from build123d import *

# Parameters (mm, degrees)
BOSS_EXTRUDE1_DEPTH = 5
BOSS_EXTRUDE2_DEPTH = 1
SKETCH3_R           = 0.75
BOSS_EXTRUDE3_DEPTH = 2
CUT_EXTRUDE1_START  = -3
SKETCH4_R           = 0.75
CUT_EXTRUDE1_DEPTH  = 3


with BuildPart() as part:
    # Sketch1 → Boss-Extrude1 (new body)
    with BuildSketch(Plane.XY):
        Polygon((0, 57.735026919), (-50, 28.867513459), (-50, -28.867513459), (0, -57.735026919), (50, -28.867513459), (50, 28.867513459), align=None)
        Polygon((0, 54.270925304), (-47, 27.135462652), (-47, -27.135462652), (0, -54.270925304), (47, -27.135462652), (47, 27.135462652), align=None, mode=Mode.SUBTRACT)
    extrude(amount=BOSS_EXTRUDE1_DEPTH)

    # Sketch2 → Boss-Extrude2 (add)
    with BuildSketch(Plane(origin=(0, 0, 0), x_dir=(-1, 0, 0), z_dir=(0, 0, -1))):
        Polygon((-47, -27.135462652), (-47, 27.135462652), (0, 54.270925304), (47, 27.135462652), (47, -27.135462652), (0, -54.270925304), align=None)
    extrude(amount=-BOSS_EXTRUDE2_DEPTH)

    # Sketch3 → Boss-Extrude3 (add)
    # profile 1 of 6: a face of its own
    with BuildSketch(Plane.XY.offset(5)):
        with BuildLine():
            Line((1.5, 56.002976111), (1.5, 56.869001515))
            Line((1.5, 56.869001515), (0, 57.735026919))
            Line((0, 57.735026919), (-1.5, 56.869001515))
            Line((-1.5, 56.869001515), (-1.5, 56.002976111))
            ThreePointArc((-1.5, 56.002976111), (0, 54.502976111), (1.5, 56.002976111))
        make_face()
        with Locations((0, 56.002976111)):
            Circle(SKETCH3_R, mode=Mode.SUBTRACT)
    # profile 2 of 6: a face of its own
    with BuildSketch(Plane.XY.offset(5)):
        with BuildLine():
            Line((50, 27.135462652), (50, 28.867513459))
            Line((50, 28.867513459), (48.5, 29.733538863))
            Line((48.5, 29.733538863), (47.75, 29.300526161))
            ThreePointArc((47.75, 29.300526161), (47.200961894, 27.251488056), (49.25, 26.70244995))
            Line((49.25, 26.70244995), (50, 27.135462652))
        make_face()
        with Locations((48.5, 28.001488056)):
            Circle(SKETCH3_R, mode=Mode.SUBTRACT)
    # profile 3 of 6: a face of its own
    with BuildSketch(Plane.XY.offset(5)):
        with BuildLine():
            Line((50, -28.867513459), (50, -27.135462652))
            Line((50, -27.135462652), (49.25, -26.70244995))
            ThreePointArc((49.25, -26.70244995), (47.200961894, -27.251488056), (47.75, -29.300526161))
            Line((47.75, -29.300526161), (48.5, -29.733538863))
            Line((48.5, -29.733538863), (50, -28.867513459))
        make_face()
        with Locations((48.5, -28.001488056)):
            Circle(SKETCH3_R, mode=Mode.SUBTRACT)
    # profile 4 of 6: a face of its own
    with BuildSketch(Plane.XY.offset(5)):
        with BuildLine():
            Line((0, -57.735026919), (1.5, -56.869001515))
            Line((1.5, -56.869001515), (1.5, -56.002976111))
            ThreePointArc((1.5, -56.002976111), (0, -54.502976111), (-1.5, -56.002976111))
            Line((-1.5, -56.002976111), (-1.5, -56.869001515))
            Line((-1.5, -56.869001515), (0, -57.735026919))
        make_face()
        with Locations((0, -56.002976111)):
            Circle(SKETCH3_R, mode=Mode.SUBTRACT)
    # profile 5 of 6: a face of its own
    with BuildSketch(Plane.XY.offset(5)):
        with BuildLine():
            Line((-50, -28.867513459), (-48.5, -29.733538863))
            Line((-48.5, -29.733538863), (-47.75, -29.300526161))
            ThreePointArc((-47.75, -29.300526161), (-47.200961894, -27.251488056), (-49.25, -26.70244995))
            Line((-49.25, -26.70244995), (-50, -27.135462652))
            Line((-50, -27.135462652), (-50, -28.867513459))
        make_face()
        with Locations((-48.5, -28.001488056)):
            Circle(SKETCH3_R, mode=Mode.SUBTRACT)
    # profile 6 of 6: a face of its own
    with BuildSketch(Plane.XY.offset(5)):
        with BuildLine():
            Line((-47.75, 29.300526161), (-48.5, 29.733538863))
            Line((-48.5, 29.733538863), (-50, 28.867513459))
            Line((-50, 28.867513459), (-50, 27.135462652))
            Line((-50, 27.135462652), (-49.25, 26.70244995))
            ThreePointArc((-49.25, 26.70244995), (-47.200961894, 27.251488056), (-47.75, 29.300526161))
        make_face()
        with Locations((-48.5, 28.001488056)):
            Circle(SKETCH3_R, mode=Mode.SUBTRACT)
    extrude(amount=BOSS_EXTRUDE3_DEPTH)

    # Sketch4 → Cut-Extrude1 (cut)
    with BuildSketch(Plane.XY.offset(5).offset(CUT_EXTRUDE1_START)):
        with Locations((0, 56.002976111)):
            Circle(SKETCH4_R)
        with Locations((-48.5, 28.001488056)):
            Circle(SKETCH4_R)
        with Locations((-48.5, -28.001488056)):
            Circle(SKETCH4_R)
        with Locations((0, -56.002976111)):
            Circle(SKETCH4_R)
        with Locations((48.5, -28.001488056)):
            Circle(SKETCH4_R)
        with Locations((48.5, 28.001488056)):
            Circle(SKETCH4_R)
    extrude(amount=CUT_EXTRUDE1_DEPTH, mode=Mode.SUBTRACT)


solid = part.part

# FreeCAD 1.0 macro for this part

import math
import FreeCAD as App
import Part
import Sketcher

V = App.Vector
Q = App.Units.Quantity


def add_polygon(sketch, points):
    """Adds a closed chain of lines whose ends are joined by coincident constraints."""
    first, n = sketch.GeometryCount, len(points)
    for a, b in zip(points, points[1:] + points[:1]):
        sketch.addGeometry(Part.LineSegment(App.Vector(*a, 0), App.Vector(*b, 0)), False)
    for i in range(n):
        sketch.addConstraint(Sketcher.Constraint("Coincident", first + i, 2, first + (i + 1) % n, 1))

doc = App.newDocument("Part")
params = doc.addObject("Spreadsheet::Sheet", "Params")
for row, (alias, value) in enumerate([
    ("pad1_length", "5 mm"),
    ("pad2_length", "1 mm"),
    ("sketch3_diameter", "1.5 mm"),
    ("sketch3_radius", "1.5 mm"),
    ("pad3_length", "2 mm"),
    ("sketch4_diameter", "1.5 mm"),
    ("pocket1_length", "3 mm"),
], start=1):
    params.set(f"A{row}", alias)
    params.set(f"B{row}", "=" + value)
    params.setAlias(f"B{row}", alias)

body = doc.addObject("PartDesign::Body", "Body")

# Sketch on XY plane
sketch1 = doc.addObject("Sketcher::SketchObject", "Sketch")
body.addObject(sketch1)
sketch1.AttachmentSupport = (doc.XY_Plane, [""])
sketch1.MapMode = "FlatFace"
add_polygon(sketch1, [(0, 57.735027), (-50, 28.867513), (-50, -28.867513), (0, -57.735027), (50, -28.867513), (50, 28.867513)])  # lines 0-5
add_polygon(sketch1, [(-47, 27.135463), (0, 54.270925), (47, 27.135463), (47, -27.135463), (0, -54.270925), (-47, -27.135463)])  # lines 6-11
sketch1.addConstraint([
    Sketcher.Constraint("Vertical", 1),
    Sketcher.Constraint("Vertical", 4),
    Sketcher.Constraint("Vertical", 8),
    Sketcher.Constraint("Vertical", 11),
    Sketcher.Constraint("Symmetric", 0, 2, 3, 2, -1, 1),
    Sketcher.Constraint("Symmetric", 2, 2, 5, 2, -1, 1),
    Sketcher.Constraint("Symmetric", 6, 2, 9, 2, -1, 1),
    Sketcher.Constraint("Symmetric", 7, 2, 10, 2, -1, 1),
    Sketcher.Constraint("PointOnObject", 2, 2, -2),
    Sketcher.Constraint("PointOnObject", 6, 2, -2),
    Sketcher.Constraint("Parallel", 2, 5),
    Sketcher.Constraint("Parallel", 3, 6),
    Sketcher.Constraint("Parallel", 5, 7),
    Sketcher.Constraint("Parallel", 6, 9),
    Sketcher.Constraint("Horizontal", 1, 2, 3, 2),
    Sketcher.Constraint("Angle", 0, Q("-150 deg")),
    Sketcher.Constraint("DistanceX", 0, 2, -1, 1, Q("50 mm")),
    Sketcher.Constraint("DistanceX", -1, 1, 7, 2, Q("47 mm")),
    Sketcher.Constraint("DistanceY", 6, 2, 5, 2, Q("3.464102 mm")),
    Sketcher.Constraint("DistanceY", 1, 2, 1, 1, Q("57.735027 mm")),
])
pad1 = doc.addObject("PartDesign::Pad", "Pad")
body.addObject(pad1)
pad1.Profile = sketch1
pad1.setExpression("Length", "Params.pad1_length")

# Sketch on XY plane
sketch2 = doc.addObject("Sketcher::SketchObject", "Sketch001")
body.addObject(sketch2)
sketch2.AttachmentSupport = (doc.XY_Plane, [""])
sketch2.MapMode = "FlatFace"
add_polygon(sketch2, [(47, 27.135463), (47, -27.135463), (0, -54.270925), (-47, -27.135463), (-47, 27.135463), (0, 54.270925)])  # lines 0-5
sketch2.addConstraint([
    Sketcher.Constraint("Vertical", 0),
    Sketcher.Constraint("Vertical", 3),
    Sketcher.Constraint("Symmetric", 0, 2, 3, 2, -1, 1),
    Sketcher.Constraint("Symmetric", 1, 2, 4, 2, -1, 1),
    Sketcher.Constraint("PointOnObject", 1, 2, -2),
    Sketcher.Constraint("Parallel", 2, 5),
    Sketcher.Constraint("Horizontal", 0, 2, 2, 2),
    Sketcher.Constraint("Angle", 1, Q("-150 deg")),
    Sketcher.Constraint("DistanceX", -1, 1, 0, 2, Q("47 mm")),
    Sketcher.Constraint("DistanceY", 0, 2, 0, 1, Q("54.270925 mm")),
])
pad2 = doc.addObject("PartDesign::Pad", "Pad001")
body.addObject(pad2)
pad2.Profile = sketch2
pad2.setExpression("Length", "Params.pad2_length")

# Sketch on XY plane
sketch3 = doc.addObject("Sketcher::SketchObject", "Sketch002")
body.addObject(sketch3)
sketch3.AttachmentSupport = (doc.XY_Plane, [""])
sketch3.MapMode = "FlatFace"
sketch3.AttachmentOffset = App.Placement(V(0, 0, 5), App.Rotation())
sketch3.addGeometry([
    Part.LineSegment(V(1.5, 56.002976, 0), V(1.5, 56.869002, 0)),  # 0
    Part.LineSegment(V(1.5, 56.869002, 0), V(0, 57.735027, 0)),  # 1
    Part.LineSegment(V(0, 57.735027, 0), V(-1.5, 56.869002, 0)),  # 2
    Part.LineSegment(V(-1.5, 56.869002, 0), V(-1.5, 56.002976, 0)),  # 3
    Part.ArcOfCircle(Part.Circle(V(0, 56.002976, 0), V(0, 0, 1), 1.5), math.radians(180), math.radians(360)),  # 4
    Part.Circle(V(0, 56.002976, 0), V(0, 0, 1), 0.75),  # 5
    Part.LineSegment(V(50, 27.135463, 0), V(50, 28.867513, 0)),  # 6
    Part.LineSegment(V(50, 28.867513, 0), V(48.5, 29.733539, 0)),  # 7
    Part.LineSegment(V(48.5, 29.733539, 0), V(47.75, 29.300526, 0)),  # 8
    Part.ArcOfCircle(Part.Circle(V(48.5, 28.001488, 0), V(0, 0, 1), 1.5), math.radians(120), math.radians(300)),  # 9
    Part.LineSegment(V(49.25, 26.70245, 0), V(50, 27.135463, 0)),  # 10
    Part.Circle(V(48.5, 28.001488, 0), V(0, 0, 1), 0.75),  # 11
    Part.LineSegment(V(50, -28.867513, 0), V(50, -27.135463, 0)),  # 12
    Part.LineSegment(V(50, -27.135463, 0), V(49.25, -26.70245, 0)),  # 13
    Part.ArcOfCircle(Part.Circle(V(48.5, -28.001488, 0), V(0, 0, 1), 1.5), math.radians(60), math.radians(240)),  # 14
    Part.LineSegment(V(47.75, -29.300526, 0), V(48.5, -29.733539, 0)),  # 15
    Part.LineSegment(V(48.5, -29.733539, 0), V(50, -28.867513, 0)),  # 16
    Part.Circle(V(48.5, -28.001488, 0), V(0, 0, 1), 0.75),  # 17
    Part.LineSegment(V(0, -57.735027, 0), V(1.5, -56.869002, 0)),  # 18
    Part.LineSegment(V(1.5, -56.869002, 0), V(1.5, -56.002976, 0)),  # 19
    Part.ArcOfCircle(Part.Circle(V(0, -56.002976, 0), V(0, 0, 1), 1.5), math.radians(0), math.radians(180)),  # 20
    Part.LineSegment(V(-1.5, -56.002976, 0), V(-1.5, -56.869002, 0)),  # 21
    Part.LineSegment(V(-1.5, -56.869002, 0), V(0, -57.735027, 0)),  # 22
    Part.Circle(V(0, -56.002976, 0), V(0, 0, 1), 0.75),  # 23
    Part.LineSegment(V(-50, -28.867513, 0), V(-48.5, -29.733539, 0)),  # 24
    Part.LineSegment(V(-48.5, -29.733539, 0), V(-47.75, -29.300526, 0)),  # 25
    Part.ArcOfCircle(Part.Circle(V(-48.5, -28.001488, 0), V(0, 0, 1), 1.5), math.radians(-60), math.radians(120)),  # 26
    Part.LineSegment(V(-49.25, -26.70245, 0), V(-50, -27.135463, 0)),  # 27
    Part.LineSegment(V(-50, -27.135463, 0), V(-50, -28.867513, 0)),  # 28
    Part.Circle(V(-48.5, -28.001488, 0), V(0, 0, 1), 0.75),  # 29
    Part.LineSegment(V(-47.75, 29.300526, 0), V(-48.5, 29.733539, 0)),  # 30
    Part.LineSegment(V(-48.5, 29.733539, 0), V(-50, 28.867513, 0)),  # 31
    Part.LineSegment(V(-50, 28.867513, 0), V(-50, 27.135463, 0)),  # 32
    Part.LineSegment(V(-50, 27.135463, 0), V(-49.25, 26.70245, 0)),  # 33
    Part.ArcOfCircle(Part.Circle(V(-48.5, 28.001488, 0), V(0, 0, 1), 1.5), math.radians(-120), math.radians(60)),  # 34
    Part.Circle(V(-48.5, 28.001488, 0), V(0, 0, 1), 0.75),  # 35
], False)
sketch3.addConstraint([
    Sketcher.Constraint("Coincident", 0, 2, 1, 1),
    Sketcher.Constraint("Coincident", 1, 2, 2, 1),
    Sketcher.Constraint("Coincident", 2, 2, 3, 1),
    Sketcher.Constraint("Tangent", 3, 2, 4, 1),
    Sketcher.Constraint("Tangent", 4, 2, 0, 1),
    Sketcher.Constraint("Coincident", 6, 2, 7, 1),
    Sketcher.Constraint("Coincident", 7, 2, 8, 1),
    Sketcher.Constraint("Tangent", 8, 2, 9, 1),
    Sketcher.Constraint("Tangent", 9, 2, 10, 1),
    Sketcher.Constraint("Coincident", 10, 2, 6, 1),
    Sketcher.Constraint("Coincident", 12, 2, 13, 1),
    Sketcher.Constraint("Tangent", 13, 2, 14, 1),
    Sketcher.Constraint("Tangent", 14, 2, 15, 1),
    Sketcher.Constraint("Coincident", 15, 2, 16, 1),
    Sketcher.Constraint("Coincident", 16, 2, 12, 1),
    Sketcher.Constraint("Coincident", 18, 2, 19, 1),
    Sketcher.Constraint("Tangent", 19, 2, 20, 1),
    Sketcher.Constraint("Tangent", 20, 2, 21, 1),
    Sketcher.Constraint("Coincident", 21, 2, 22, 1),
    Sketcher.Constraint("Coincident", 22, 2, 18, 1),
    Sketcher.Constraint("Coincident", 24, 2, 25, 1),
    Sketcher.Constraint("Tangent", 25, 2, 26, 1),
    Sketcher.Constraint("Tangent", 26, 2, 27, 1),
    Sketcher.Constraint("Coincident", 27, 2, 28, 1),
    Sketcher.Constraint("Coincident", 28, 2, 24, 1),
    Sketcher.Constraint("Coincident", 30, 2, 31, 1),
    Sketcher.Constraint("Coincident", 31, 2, 32, 1),
    Sketcher.Constraint("Coincident", 32, 2, 33, 1),
    Sketcher.Constraint("Tangent", 33, 2, 34, 1),
    Sketcher.Constraint("Tangent", 34, 2, 30, 1),
    Sketcher.Constraint("Vertical", 0),
    Sketcher.Constraint("Vertical", 3),
    Sketcher.Constraint("Vertical", 6),
    Sketcher.Constraint("Vertical", 12),
    Sketcher.Constraint("Vertical", 19),
    Sketcher.Constraint("Vertical", 21),
    Sketcher.Constraint("Vertical", 28),
    Sketcher.Constraint("Vertical", 32),
    Sketcher.Constraint("Coincident", 5, 3, 4, 3),
    Sketcher.Constraint("Coincident", 11, 3, 9, 3),
    Sketcher.Constraint("Coincident", 17, 3, 14, 3),
    Sketcher.Constraint("Coincident", 23, 3, 20, 3),
    Sketcher.Constraint("Coincident", 29, 3, 26, 3),
    Sketcher.Constraint("Coincident", 35, 3, 34, 3),
    Sketcher.Constraint("Equal", 4, 9),
    Sketcher.Constraint("Equal", 5, 11),
    Sketcher.Constraint("Equal", 9, 14),
    Sketcher.Constraint("Equal", 11, 17),
    Sketcher.Constraint("Equal", 14, 20),
    Sketcher.Constraint("Equal", 17, 23),
    Sketcher.Constraint("Equal", 20, 26),
    Sketcher.Constraint("Equal", 23, 29),
    Sketcher.Constraint("Equal", 26, 34),
    Sketcher.Constraint("Equal", 29, 35),
    Sketcher.Constraint("Symmetric", 4, 3, 20, 3, -1, 1),
    Sketcher.Constraint("Symmetric", 9, 3, 26, 3, -1, 1),
    Sketcher.Constraint("Symmetric", 14, 3, 34, 3, -1, 1),
    Sketcher.Constraint("Symmetric", 1, 2, 22, 2, -1, 1),
    Sketcher.Constraint("Symmetric", 7, 2, 24, 2, -1, 1),
    Sketcher.Constraint("Symmetric", 10, 2, 27, 2, -1, 1),
    Sketcher.Constraint("Symmetric", 15, 2, 30, 2, -1, 1),
    Sketcher.Constraint("Symmetric", 16, 2, 31, 2, -1, 1),
    Sketcher.Constraint("Symmetric", 14, 3, 26, 3, -2),
    Sketcher.Constraint("Symmetric", 0, 2, 2, 2, -2),
    Sketcher.Constraint("Symmetric", 15, 2, 24, 2, -2),
    Sketcher.Constraint("Symmetric", 12, 2, 27, 2, -2),
    Sketcher.Constraint("PointOnObject", 1, 2, -2),
    Sketcher.Constraint("Parallel", 1, 7),
    Sketcher.Constraint("Parallel", 2, 8),
    Sketcher.Constraint("Parallel", 8, 10),
    Sketcher.Constraint("Parallel", 10, 16),
    Sketcher.Constraint("Parallel", 16, 18),
    Sketcher.Constraint("Parallel", 15, 22),
    Sketcher.Constraint("Parallel", 22, 24),
    Sketcher.Constraint("Parallel", 30, 33),
    Sketcher.Constraint("Vertical", 17, 3, 7, 2),
    Sketcher.Constraint("Equal", 2, 7),
    Sketcher.Constraint("Equal", 8, 10),
    Sketcher.Constraint("Diameter", 5, Q("1.5 mm")),
    Sketcher.Constraint("Radius", 4, Q("1.5 mm")),
    Sketcher.Constraint("DistanceX", -1, 1, 6, 2, Q("50 mm")),
    Sketcher.Constraint("DistanceY", -1, 1, 0, 2, Q("56.869002 mm")),
    Sketcher.Constraint("DistanceY", 14, 3, 6, 2, Q("56.869002 mm")),
    Sketcher.Constraint("DistanceY", 0, 1, 0, 2, Q("0.866025 mm")),
])
sketch3.setExpression("Constraints[78]", "Params.sketch3_diameter")
sketch3.setExpression("Constraints[79]", "Params.sketch3_radius")
pad3 = doc.addObject("PartDesign::Pad", "Pad002")
body.addObject(pad3)
pad3.Profile = sketch3
pad3.setExpression("Length", "Params.pad3_length")

# Sketch on XY plane
sketch4 = doc.addObject("Sketcher::SketchObject", "Sketch003")
body.addObject(sketch4)
sketch4.AttachmentSupport = (doc.XY_Plane, [""])
sketch4.MapMode = "FlatFace"
sketch4.AttachmentOffset = App.Placement(V(0, 0, 2), App.Rotation())
sketch4.addGeometry([
    Part.Circle(V(0, 56.002976, 0), V(0, 0, 1), 0.75),  # 0
    Part.Circle(V(-48.5, 28.001488, 0), V(0, 0, 1), 0.75),  # 1
    Part.Circle(V(-48.5, -28.001488, 0), V(0, 0, 1), 0.75),  # 2
    Part.Circle(V(0, -56.002976, 0), V(0, 0, 1), 0.75),  # 3
    Part.Circle(V(48.5, -28.001488, 0), V(0, 0, 1), 0.75),  # 4
    Part.Circle(V(48.5, 28.001488, 0), V(0, 0, 1), 0.75),  # 5
], False)
sketch4.addConstraint([
    Sketcher.Constraint("Equal", 0, 1),
    Sketcher.Constraint("Equal", 1, 2),
    Sketcher.Constraint("Equal", 2, 3),
    Sketcher.Constraint("Equal", 3, 4),
    Sketcher.Constraint("Equal", 4, 5),
    Sketcher.Constraint("Symmetric", 0, 3, 3, 3, -1, 1),
    Sketcher.Constraint("Symmetric", 1, 3, 4, 3, -1, 1),
    Sketcher.Constraint("Symmetric", 2, 3, 5, 3, -1, 1),
    Sketcher.Constraint("Symmetric", 2, 3, 4, 3, -2),
    Sketcher.Constraint("PointOnObject", 0, 3, -2),
    Sketcher.Constraint("Diameter", 0, Q("1.5 mm")),
    Sketcher.Constraint("DistanceX", 2, 3, 4, 3, Q("97 mm")),
    Sketcher.Constraint("DistanceY", -1, 1, 1, 3, Q("28.001488 mm")),
    Sketcher.Constraint("DistanceY", 1, 3, 0, 3, Q("28.001488 mm")),
])
sketch4.setExpression("Constraints[10]", "Params.sketch4_diameter")
pocket1 = doc.addObject("PartDesign::Pocket", "Pocket")
body.addObject(pocket1)
pocket1.Profile = sketch4
pocket1.setExpression("Length", "Params.pocket1_length")
pocket1.Reversed = True

doc.recompute()
